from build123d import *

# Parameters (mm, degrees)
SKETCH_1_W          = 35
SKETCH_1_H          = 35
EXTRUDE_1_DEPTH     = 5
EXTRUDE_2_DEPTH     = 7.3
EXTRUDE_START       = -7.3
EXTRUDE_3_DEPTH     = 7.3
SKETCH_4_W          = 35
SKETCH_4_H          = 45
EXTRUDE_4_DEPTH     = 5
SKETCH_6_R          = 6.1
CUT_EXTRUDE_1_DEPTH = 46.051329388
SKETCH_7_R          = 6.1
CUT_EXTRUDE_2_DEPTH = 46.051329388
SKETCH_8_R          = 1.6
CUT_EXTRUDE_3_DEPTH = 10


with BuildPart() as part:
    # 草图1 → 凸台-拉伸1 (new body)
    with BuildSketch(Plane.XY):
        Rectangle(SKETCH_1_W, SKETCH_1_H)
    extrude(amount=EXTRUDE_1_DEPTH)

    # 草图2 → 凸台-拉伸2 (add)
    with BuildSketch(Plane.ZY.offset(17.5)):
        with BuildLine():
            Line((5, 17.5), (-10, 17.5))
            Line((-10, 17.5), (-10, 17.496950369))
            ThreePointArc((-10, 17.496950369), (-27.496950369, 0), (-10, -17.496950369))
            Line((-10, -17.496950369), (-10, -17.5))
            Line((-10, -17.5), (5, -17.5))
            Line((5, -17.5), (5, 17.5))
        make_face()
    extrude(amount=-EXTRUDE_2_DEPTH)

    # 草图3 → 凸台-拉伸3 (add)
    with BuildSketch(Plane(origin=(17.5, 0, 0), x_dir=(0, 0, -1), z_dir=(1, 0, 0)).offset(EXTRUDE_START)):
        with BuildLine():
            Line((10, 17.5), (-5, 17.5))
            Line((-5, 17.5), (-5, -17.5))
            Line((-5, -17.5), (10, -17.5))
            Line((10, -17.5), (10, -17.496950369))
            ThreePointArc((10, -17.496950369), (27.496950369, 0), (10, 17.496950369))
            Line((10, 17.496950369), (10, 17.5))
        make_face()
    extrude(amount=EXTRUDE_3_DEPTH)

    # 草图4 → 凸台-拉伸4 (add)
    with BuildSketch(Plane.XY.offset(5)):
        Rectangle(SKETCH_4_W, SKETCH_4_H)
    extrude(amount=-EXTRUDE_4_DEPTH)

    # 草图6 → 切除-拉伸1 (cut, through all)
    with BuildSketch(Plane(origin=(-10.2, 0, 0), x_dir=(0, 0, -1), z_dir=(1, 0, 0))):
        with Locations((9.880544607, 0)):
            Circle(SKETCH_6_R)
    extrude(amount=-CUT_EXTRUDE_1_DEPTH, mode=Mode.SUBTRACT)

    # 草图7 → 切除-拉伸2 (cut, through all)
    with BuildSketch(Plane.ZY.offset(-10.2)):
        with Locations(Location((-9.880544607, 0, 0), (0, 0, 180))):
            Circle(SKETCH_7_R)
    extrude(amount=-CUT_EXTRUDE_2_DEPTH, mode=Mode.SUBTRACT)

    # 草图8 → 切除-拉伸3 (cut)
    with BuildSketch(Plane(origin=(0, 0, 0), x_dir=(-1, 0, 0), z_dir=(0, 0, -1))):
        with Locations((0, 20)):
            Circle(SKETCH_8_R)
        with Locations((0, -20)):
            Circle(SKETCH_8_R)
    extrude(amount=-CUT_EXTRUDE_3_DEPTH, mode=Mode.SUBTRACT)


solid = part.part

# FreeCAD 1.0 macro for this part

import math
import FreeCAD as App
import Part
import Sketcher
from FreeCAD import Vector

doc = App.newDocument("Part")
body = doc.addObject("PartDesign::Body", "Body")

# Sketch on XY plane
sketch1 = doc.addObject("Sketcher::SketchObject", "Sketch")
body.addObject(sketch1)
sketch1.AttachmentSupport = (doc.XY_Plane, [""])
sketch1.MapMode = "FlatFace"
sketch1.addGeometry([
    Part.LineSegment(Vector(-18, 18, 0), Vector(-18, -18, 0)),
    Part.LineSegment(Vector(-18, -18, 0), Vector(18, -18, 0)),
    Part.LineSegment(Vector(18, -18, 0), Vector(18, 18, 0)),
    Part.LineSegment(Vector(18, 18, 0), Vector(-18, 18, 0)),
], False)
sketch1.addConstraint([
    Sketcher.Constraint("Coincident", 0, 2, 1, 1),
    Sketcher.Constraint("Coincident", 1, 2, 2, 1),
    Sketcher.Constraint("Coincident", 2, 2, 3, 1),
    Sketcher.Constraint("Coincident", 3, 2, 0, 1),
    Sketcher.Constraint("Vertical", 0),
    Sketcher.Constraint("Horizontal", 1),
    Sketcher.Constraint("Vertical", 2),
    Sketcher.Constraint("Horizontal", 3),
    Sketcher.Constraint("Symmetric", 0, 2, 2, 2, -1, 1),
    Sketcher.Constraint("Equal", 3, 0),
    Sketcher.Constraint("DistanceX", 1, 1, 1, 2, 35.0),
])
pad1 = doc.addObject("PartDesign::Pad", "Pad")
body.addObject(pad1)
pad1.Profile = sketch1
pad1.Length = 5

# Sketch on YZ plane
sketch2 = doc.addObject("Sketcher::SketchObject", "Sketch001")
body.addObject(sketch2)
sketch2.AttachmentSupport = (doc.YZ_Plane, [""])
sketch2.MapMode = "FlatFace"
sketch2.AttachmentOffset = App.Placement(Vector(0, 0, -17.5), App.Rotation())
sketch2.addGeometry([
    Part.LineSegment(Vector(17.5, 5, 0), Vector(17.5, -10, 0)),  # 0
    Part.LineSegment(Vector(17.5, -10, 0), Vector(17.497, -10, 0)),  # 1
    Part.ArcOfCircle(Part.Circle(Vector(0, -10, 0), Vector(0, 0, 1), 17.497), math.radians(180), math.radians(360)),  # 2
    Part.LineSegment(Vector(-17.497, -10, 0), Vector(-17.5, -10, 0)),  # 3
    Part.LineSegment(Vector(-17.5, -10, 0), Vector(-17.5, 5, 0)),  # 4
    Part.LineSegment(Vector(-17.5, 5, 0), Vector(17.5, 5, 0)),  # 5
], False)
sketch2.addConstraint([
    Sketcher.Constraint("Coincident", 0, 2, 1, 1),
    Sketcher.Constraint("Coincident", 1, 2, 2, 2),
    Sketcher.Constraint("Coincident", 2, 1, 3, 1),
    Sketcher.Constraint("Coincident", 3, 2, 4, 1),
    Sketcher.Constraint("Coincident", 4, 2, 5, 1),
    Sketcher.Constraint("Coincident", 5, 2, 0, 1),
    Sketcher.Constraint("Vertical", 0),
    Sketcher.Constraint("Horizontal", 1),
    Sketcher.Constraint("Horizontal", 3),
    Sketcher.Constraint("Vertical", 4),
    Sketcher.Constraint("Horizontal", 5),
    Sketcher.Constraint("Symmetric", 1, 2, 2, 1, -2),
    Sketcher.Constraint("Horizontal", 2, 3, 0, 2),
    Sketcher.Constraint("Equal", 1, 3),
    Sketcher.Constraint("DistanceX", 5, 1, 5, 2, 35.0),
    Sketcher.Constraint("DistanceY", 0, 2, 0, 1, 15.0),
    Sketcher.Constraint("DistanceY", 2, 3, -1, 1, 10.0),
    Sketcher.Constraint("Radius", 2, 17.49695),
])
pad2 = doc.addObject("PartDesign::Pad", "Pad001")
body.addObject(pad2)
pad2.Profile = sketch2
pad2.Length = 7.3

# Sketch on YZ plane
sketch3 = doc.addObject("Sketcher::SketchObject", "Sketch002")
body.addObject(sketch3)
sketch3.AttachmentSupport = (doc.YZ_Plane, [""])
sketch3.MapMode = "FlatFace"
sketch3.AttachmentOffset = App.Placement(Vector(0, 0, 10.2), App.Rotation())
sketch3.addGeometry([
    Part.LineSegment(Vector(17.5, -10, 0), Vector(17.5, 5, 0)),  # 0
    Part.LineSegment(Vector(17.5, 5, 0), Vector(-17.5, 5, 0)),  # 1
    Part.LineSegment(Vector(-17.5, 5, 0), Vector(-17.5, -10, 0)),  # 2
    Part.LineSegment(Vector(-17.5, -10, 0), Vector(-17.497, -10, 0)),  # 3
    Part.ArcOfCircle(Part.Circle(Vector(0, -10, 0), Vector(0, 0, 1), 17.497), math.radians(180), math.radians(360)),  # 4
    Part.LineSegment(Vector(17.497, -10, 0), Vector(17.5, -10, 0)),  # 5
], False)
sketch3.addConstraint([
    Sketcher.Constraint("Coincident", 0, 2, 1, 1),
    Sketcher.Constraint("Coincident", 1, 2, 2, 1),
    Sketcher.Constraint("Coincident", 2, 2, 3, 1),
    Sketcher.Constraint("Coincident", 3, 2, 4, 1),
    Sketcher.Constraint("Coincident", 4, 2, 5, 1),
    Sketcher.Constraint("Coincident", 5, 2, 0, 1),
    Sketcher.Constraint("Vertical", 0),
    Sketcher.Constraint("Horizontal", 1),
    Sketcher.Constraint("Vertical", 2),
    Sketcher.Constraint("Horizontal", 3),
    Sketcher.Constraint("Horizontal", 5),
    Sketcher.Constraint("Symmetric", 3, 2, 4, 2, -2),
    Sketcher.Constraint("Horizontal", 4, 3, 2, 2),
    Sketcher.Constraint("Equal", 3, 5),
    Sketcher.Constraint("DistanceX", 1, 2, 1, 1, 35.0),
    Sketcher.Constraint("DistanceY", 0, 1, 0, 2, 15.0),
    Sketcher.Constraint("DistanceY", 4, 3, -1, 1, 10.0),
    Sketcher.Constraint("Radius", 4, 17.49695),
])
pad3 = doc.addObject("PartDesign::Pad", "Pad002")
body.addObject(pad3)
pad3.Profile = sketch3
pad3.Length = 7.3

# Sketch on XY plane
sketch4 = doc.addObject("Sketcher::SketchObject", "Sketch003")
body.addObject(sketch4)
sketch4.AttachmentSupport = (doc.XY_Plane, [""])
sketch4.MapMode = "FlatFace"
sketch4.AttachmentOffset = App.Placement(Vector(0, 0, 5), App.Rotation())
sketch4.addGeometry([
    Part.LineSegment(Vector(-18, 22, 0), Vector(-18, -22, 0)),
    Part.LineSegment(Vector(-18, -22, 0), Vector(18, -22, 0)),
    Part.LineSegment(Vector(18, -22, 0), Vector(18, 22, 0)),
    Part.LineSegment(Vector(18, 22, 0), Vector(-18, 22, 0)),
], False)
sketch4.addConstraint([
    Sketcher.Constraint("Coincident", 0, 2, 1, 1),
    Sketcher.Constraint("Coincident", 1, 2, 2, 1),
    Sketcher.Constraint("Coincident", 2, 2, 3, 1),
    Sketcher.Constraint("Coincident", 3, 2, 0, 1),
    Sketcher.Constraint("Vertical", 0),
    Sketcher.Constraint("Horizontal", 1),
    Sketcher.Constraint("Vertical", 2),
    Sketcher.Constraint("Horizontal", 3),
    Sketcher.Constraint("Symmetric", 0, 2, 2, 2, -1, 1),
    Sketcher.Constraint("DistanceX", 1, 1, 1, 2, 35.0),
    Sketcher.Constraint("DistanceY", 0, 2, 0, 1, 45.0),
])
pad4 = doc.addObject("PartDesign::Pad", "Pad003")
body.addObject(pad4)
pad4.Profile = sketch4
pad4.Length = 5
pad4.Reversed = True

# Sketch on YZ plane
sketch5 = doc.addObject("Sketcher::SketchObject", "Sketch004")
body.addObject(sketch5)
sketch5.AttachmentSupport = (doc.YZ_Plane, [""])
sketch5.MapMode = "FlatFace"
sketch5.AttachmentOffset = App.Placement(Vector(0, 0, -10.2), App.Rotation())
sketch5.addGeometry(Part.Circle(Vector(0, -10, 0), Vector(0, 0, 1), 6), False)
sketch5.addConstraint([
    Sketcher.Constraint("PointOnObject", 0, 3, -2),
    Sketcher.Constraint("Diameter", 0, 12.2),
    Sketcher.Constraint("DistanceY", 0, 3, -1, 1, 9.880545),
])
pocket1 = doc.addObject("PartDesign::Pocket", "Pocket")
body.addObject(pocket1)
pocket1.Profile = sketch5
pocket1.Type = "ThroughAll"

# Sketch on YZ plane
sketch6 = doc.addObject("Sketcher::SketchObject", "Sketch005")
body.addObject(sketch6)
sketch6.AttachmentSupport = (doc.YZ_Plane, [""])
sketch6.MapMode = "FlatFace"
sketch6.AttachmentOffset = App.Placement(Vector(0, 0, 10.2), App.Rotation())
sketch6.addGeometry(Part.Circle(Vector(0, -10, 0), Vector(0, 0, 1), 6), False)
sketch6.addConstraint([
    Sketcher.Constraint("PointOnObject", 0, 3, -2),
    Sketcher.Constraint("Diameter", 0, 12.2),
    Sketcher.Constraint("DistanceY", 0, 3, -1, 1, 9.880545),
])
pocket2 = doc.addObject("PartDesign::Pocket", "Pocket001")
body.addObject(pocket2)
pocket2.Profile = sketch6
pocket2.Type = "ThroughAll"
pocket2.Reversed = True

# Sketch on XY plane
sketch7 = doc.addObject("Sketcher::SketchObject", "Sketch006")
body.addObject(sketch7)
sketch7.AttachmentSupport = (doc.XY_Plane, [""])
sketch7.MapMode = "FlatFace"
sketch7.addGeometry([
    Part.Circle(Vector(0, 20, 0), Vector(0, 0, 1), 1.6),
    Part.Circle(Vector(0, -20, 0), Vector(0, 0, 1), 1.6),
], False)
sketch7.addConstraint([
    Sketcher.Constraint("Equal", 0, 1),
    Sketcher.Constraint("Symmetric", 0, 3, 1, 3, -1, 1),
    Sketcher.Constraint("PointOnObject", 0, 3, -2),
    Sketcher.Constraint("Diameter", 0, 3.2),
    Sketcher.Constraint("DistanceY", -1, 1, 0, 3, 20.0),
])
pocket3 = doc.addObject("PartDesign::Pocket", "Pocket002")
body.addObject(pocket3)
pocket3.Profile = sketch7
pocket3.Length = 10
pocket3.Reversed = True

doc.recompute()
